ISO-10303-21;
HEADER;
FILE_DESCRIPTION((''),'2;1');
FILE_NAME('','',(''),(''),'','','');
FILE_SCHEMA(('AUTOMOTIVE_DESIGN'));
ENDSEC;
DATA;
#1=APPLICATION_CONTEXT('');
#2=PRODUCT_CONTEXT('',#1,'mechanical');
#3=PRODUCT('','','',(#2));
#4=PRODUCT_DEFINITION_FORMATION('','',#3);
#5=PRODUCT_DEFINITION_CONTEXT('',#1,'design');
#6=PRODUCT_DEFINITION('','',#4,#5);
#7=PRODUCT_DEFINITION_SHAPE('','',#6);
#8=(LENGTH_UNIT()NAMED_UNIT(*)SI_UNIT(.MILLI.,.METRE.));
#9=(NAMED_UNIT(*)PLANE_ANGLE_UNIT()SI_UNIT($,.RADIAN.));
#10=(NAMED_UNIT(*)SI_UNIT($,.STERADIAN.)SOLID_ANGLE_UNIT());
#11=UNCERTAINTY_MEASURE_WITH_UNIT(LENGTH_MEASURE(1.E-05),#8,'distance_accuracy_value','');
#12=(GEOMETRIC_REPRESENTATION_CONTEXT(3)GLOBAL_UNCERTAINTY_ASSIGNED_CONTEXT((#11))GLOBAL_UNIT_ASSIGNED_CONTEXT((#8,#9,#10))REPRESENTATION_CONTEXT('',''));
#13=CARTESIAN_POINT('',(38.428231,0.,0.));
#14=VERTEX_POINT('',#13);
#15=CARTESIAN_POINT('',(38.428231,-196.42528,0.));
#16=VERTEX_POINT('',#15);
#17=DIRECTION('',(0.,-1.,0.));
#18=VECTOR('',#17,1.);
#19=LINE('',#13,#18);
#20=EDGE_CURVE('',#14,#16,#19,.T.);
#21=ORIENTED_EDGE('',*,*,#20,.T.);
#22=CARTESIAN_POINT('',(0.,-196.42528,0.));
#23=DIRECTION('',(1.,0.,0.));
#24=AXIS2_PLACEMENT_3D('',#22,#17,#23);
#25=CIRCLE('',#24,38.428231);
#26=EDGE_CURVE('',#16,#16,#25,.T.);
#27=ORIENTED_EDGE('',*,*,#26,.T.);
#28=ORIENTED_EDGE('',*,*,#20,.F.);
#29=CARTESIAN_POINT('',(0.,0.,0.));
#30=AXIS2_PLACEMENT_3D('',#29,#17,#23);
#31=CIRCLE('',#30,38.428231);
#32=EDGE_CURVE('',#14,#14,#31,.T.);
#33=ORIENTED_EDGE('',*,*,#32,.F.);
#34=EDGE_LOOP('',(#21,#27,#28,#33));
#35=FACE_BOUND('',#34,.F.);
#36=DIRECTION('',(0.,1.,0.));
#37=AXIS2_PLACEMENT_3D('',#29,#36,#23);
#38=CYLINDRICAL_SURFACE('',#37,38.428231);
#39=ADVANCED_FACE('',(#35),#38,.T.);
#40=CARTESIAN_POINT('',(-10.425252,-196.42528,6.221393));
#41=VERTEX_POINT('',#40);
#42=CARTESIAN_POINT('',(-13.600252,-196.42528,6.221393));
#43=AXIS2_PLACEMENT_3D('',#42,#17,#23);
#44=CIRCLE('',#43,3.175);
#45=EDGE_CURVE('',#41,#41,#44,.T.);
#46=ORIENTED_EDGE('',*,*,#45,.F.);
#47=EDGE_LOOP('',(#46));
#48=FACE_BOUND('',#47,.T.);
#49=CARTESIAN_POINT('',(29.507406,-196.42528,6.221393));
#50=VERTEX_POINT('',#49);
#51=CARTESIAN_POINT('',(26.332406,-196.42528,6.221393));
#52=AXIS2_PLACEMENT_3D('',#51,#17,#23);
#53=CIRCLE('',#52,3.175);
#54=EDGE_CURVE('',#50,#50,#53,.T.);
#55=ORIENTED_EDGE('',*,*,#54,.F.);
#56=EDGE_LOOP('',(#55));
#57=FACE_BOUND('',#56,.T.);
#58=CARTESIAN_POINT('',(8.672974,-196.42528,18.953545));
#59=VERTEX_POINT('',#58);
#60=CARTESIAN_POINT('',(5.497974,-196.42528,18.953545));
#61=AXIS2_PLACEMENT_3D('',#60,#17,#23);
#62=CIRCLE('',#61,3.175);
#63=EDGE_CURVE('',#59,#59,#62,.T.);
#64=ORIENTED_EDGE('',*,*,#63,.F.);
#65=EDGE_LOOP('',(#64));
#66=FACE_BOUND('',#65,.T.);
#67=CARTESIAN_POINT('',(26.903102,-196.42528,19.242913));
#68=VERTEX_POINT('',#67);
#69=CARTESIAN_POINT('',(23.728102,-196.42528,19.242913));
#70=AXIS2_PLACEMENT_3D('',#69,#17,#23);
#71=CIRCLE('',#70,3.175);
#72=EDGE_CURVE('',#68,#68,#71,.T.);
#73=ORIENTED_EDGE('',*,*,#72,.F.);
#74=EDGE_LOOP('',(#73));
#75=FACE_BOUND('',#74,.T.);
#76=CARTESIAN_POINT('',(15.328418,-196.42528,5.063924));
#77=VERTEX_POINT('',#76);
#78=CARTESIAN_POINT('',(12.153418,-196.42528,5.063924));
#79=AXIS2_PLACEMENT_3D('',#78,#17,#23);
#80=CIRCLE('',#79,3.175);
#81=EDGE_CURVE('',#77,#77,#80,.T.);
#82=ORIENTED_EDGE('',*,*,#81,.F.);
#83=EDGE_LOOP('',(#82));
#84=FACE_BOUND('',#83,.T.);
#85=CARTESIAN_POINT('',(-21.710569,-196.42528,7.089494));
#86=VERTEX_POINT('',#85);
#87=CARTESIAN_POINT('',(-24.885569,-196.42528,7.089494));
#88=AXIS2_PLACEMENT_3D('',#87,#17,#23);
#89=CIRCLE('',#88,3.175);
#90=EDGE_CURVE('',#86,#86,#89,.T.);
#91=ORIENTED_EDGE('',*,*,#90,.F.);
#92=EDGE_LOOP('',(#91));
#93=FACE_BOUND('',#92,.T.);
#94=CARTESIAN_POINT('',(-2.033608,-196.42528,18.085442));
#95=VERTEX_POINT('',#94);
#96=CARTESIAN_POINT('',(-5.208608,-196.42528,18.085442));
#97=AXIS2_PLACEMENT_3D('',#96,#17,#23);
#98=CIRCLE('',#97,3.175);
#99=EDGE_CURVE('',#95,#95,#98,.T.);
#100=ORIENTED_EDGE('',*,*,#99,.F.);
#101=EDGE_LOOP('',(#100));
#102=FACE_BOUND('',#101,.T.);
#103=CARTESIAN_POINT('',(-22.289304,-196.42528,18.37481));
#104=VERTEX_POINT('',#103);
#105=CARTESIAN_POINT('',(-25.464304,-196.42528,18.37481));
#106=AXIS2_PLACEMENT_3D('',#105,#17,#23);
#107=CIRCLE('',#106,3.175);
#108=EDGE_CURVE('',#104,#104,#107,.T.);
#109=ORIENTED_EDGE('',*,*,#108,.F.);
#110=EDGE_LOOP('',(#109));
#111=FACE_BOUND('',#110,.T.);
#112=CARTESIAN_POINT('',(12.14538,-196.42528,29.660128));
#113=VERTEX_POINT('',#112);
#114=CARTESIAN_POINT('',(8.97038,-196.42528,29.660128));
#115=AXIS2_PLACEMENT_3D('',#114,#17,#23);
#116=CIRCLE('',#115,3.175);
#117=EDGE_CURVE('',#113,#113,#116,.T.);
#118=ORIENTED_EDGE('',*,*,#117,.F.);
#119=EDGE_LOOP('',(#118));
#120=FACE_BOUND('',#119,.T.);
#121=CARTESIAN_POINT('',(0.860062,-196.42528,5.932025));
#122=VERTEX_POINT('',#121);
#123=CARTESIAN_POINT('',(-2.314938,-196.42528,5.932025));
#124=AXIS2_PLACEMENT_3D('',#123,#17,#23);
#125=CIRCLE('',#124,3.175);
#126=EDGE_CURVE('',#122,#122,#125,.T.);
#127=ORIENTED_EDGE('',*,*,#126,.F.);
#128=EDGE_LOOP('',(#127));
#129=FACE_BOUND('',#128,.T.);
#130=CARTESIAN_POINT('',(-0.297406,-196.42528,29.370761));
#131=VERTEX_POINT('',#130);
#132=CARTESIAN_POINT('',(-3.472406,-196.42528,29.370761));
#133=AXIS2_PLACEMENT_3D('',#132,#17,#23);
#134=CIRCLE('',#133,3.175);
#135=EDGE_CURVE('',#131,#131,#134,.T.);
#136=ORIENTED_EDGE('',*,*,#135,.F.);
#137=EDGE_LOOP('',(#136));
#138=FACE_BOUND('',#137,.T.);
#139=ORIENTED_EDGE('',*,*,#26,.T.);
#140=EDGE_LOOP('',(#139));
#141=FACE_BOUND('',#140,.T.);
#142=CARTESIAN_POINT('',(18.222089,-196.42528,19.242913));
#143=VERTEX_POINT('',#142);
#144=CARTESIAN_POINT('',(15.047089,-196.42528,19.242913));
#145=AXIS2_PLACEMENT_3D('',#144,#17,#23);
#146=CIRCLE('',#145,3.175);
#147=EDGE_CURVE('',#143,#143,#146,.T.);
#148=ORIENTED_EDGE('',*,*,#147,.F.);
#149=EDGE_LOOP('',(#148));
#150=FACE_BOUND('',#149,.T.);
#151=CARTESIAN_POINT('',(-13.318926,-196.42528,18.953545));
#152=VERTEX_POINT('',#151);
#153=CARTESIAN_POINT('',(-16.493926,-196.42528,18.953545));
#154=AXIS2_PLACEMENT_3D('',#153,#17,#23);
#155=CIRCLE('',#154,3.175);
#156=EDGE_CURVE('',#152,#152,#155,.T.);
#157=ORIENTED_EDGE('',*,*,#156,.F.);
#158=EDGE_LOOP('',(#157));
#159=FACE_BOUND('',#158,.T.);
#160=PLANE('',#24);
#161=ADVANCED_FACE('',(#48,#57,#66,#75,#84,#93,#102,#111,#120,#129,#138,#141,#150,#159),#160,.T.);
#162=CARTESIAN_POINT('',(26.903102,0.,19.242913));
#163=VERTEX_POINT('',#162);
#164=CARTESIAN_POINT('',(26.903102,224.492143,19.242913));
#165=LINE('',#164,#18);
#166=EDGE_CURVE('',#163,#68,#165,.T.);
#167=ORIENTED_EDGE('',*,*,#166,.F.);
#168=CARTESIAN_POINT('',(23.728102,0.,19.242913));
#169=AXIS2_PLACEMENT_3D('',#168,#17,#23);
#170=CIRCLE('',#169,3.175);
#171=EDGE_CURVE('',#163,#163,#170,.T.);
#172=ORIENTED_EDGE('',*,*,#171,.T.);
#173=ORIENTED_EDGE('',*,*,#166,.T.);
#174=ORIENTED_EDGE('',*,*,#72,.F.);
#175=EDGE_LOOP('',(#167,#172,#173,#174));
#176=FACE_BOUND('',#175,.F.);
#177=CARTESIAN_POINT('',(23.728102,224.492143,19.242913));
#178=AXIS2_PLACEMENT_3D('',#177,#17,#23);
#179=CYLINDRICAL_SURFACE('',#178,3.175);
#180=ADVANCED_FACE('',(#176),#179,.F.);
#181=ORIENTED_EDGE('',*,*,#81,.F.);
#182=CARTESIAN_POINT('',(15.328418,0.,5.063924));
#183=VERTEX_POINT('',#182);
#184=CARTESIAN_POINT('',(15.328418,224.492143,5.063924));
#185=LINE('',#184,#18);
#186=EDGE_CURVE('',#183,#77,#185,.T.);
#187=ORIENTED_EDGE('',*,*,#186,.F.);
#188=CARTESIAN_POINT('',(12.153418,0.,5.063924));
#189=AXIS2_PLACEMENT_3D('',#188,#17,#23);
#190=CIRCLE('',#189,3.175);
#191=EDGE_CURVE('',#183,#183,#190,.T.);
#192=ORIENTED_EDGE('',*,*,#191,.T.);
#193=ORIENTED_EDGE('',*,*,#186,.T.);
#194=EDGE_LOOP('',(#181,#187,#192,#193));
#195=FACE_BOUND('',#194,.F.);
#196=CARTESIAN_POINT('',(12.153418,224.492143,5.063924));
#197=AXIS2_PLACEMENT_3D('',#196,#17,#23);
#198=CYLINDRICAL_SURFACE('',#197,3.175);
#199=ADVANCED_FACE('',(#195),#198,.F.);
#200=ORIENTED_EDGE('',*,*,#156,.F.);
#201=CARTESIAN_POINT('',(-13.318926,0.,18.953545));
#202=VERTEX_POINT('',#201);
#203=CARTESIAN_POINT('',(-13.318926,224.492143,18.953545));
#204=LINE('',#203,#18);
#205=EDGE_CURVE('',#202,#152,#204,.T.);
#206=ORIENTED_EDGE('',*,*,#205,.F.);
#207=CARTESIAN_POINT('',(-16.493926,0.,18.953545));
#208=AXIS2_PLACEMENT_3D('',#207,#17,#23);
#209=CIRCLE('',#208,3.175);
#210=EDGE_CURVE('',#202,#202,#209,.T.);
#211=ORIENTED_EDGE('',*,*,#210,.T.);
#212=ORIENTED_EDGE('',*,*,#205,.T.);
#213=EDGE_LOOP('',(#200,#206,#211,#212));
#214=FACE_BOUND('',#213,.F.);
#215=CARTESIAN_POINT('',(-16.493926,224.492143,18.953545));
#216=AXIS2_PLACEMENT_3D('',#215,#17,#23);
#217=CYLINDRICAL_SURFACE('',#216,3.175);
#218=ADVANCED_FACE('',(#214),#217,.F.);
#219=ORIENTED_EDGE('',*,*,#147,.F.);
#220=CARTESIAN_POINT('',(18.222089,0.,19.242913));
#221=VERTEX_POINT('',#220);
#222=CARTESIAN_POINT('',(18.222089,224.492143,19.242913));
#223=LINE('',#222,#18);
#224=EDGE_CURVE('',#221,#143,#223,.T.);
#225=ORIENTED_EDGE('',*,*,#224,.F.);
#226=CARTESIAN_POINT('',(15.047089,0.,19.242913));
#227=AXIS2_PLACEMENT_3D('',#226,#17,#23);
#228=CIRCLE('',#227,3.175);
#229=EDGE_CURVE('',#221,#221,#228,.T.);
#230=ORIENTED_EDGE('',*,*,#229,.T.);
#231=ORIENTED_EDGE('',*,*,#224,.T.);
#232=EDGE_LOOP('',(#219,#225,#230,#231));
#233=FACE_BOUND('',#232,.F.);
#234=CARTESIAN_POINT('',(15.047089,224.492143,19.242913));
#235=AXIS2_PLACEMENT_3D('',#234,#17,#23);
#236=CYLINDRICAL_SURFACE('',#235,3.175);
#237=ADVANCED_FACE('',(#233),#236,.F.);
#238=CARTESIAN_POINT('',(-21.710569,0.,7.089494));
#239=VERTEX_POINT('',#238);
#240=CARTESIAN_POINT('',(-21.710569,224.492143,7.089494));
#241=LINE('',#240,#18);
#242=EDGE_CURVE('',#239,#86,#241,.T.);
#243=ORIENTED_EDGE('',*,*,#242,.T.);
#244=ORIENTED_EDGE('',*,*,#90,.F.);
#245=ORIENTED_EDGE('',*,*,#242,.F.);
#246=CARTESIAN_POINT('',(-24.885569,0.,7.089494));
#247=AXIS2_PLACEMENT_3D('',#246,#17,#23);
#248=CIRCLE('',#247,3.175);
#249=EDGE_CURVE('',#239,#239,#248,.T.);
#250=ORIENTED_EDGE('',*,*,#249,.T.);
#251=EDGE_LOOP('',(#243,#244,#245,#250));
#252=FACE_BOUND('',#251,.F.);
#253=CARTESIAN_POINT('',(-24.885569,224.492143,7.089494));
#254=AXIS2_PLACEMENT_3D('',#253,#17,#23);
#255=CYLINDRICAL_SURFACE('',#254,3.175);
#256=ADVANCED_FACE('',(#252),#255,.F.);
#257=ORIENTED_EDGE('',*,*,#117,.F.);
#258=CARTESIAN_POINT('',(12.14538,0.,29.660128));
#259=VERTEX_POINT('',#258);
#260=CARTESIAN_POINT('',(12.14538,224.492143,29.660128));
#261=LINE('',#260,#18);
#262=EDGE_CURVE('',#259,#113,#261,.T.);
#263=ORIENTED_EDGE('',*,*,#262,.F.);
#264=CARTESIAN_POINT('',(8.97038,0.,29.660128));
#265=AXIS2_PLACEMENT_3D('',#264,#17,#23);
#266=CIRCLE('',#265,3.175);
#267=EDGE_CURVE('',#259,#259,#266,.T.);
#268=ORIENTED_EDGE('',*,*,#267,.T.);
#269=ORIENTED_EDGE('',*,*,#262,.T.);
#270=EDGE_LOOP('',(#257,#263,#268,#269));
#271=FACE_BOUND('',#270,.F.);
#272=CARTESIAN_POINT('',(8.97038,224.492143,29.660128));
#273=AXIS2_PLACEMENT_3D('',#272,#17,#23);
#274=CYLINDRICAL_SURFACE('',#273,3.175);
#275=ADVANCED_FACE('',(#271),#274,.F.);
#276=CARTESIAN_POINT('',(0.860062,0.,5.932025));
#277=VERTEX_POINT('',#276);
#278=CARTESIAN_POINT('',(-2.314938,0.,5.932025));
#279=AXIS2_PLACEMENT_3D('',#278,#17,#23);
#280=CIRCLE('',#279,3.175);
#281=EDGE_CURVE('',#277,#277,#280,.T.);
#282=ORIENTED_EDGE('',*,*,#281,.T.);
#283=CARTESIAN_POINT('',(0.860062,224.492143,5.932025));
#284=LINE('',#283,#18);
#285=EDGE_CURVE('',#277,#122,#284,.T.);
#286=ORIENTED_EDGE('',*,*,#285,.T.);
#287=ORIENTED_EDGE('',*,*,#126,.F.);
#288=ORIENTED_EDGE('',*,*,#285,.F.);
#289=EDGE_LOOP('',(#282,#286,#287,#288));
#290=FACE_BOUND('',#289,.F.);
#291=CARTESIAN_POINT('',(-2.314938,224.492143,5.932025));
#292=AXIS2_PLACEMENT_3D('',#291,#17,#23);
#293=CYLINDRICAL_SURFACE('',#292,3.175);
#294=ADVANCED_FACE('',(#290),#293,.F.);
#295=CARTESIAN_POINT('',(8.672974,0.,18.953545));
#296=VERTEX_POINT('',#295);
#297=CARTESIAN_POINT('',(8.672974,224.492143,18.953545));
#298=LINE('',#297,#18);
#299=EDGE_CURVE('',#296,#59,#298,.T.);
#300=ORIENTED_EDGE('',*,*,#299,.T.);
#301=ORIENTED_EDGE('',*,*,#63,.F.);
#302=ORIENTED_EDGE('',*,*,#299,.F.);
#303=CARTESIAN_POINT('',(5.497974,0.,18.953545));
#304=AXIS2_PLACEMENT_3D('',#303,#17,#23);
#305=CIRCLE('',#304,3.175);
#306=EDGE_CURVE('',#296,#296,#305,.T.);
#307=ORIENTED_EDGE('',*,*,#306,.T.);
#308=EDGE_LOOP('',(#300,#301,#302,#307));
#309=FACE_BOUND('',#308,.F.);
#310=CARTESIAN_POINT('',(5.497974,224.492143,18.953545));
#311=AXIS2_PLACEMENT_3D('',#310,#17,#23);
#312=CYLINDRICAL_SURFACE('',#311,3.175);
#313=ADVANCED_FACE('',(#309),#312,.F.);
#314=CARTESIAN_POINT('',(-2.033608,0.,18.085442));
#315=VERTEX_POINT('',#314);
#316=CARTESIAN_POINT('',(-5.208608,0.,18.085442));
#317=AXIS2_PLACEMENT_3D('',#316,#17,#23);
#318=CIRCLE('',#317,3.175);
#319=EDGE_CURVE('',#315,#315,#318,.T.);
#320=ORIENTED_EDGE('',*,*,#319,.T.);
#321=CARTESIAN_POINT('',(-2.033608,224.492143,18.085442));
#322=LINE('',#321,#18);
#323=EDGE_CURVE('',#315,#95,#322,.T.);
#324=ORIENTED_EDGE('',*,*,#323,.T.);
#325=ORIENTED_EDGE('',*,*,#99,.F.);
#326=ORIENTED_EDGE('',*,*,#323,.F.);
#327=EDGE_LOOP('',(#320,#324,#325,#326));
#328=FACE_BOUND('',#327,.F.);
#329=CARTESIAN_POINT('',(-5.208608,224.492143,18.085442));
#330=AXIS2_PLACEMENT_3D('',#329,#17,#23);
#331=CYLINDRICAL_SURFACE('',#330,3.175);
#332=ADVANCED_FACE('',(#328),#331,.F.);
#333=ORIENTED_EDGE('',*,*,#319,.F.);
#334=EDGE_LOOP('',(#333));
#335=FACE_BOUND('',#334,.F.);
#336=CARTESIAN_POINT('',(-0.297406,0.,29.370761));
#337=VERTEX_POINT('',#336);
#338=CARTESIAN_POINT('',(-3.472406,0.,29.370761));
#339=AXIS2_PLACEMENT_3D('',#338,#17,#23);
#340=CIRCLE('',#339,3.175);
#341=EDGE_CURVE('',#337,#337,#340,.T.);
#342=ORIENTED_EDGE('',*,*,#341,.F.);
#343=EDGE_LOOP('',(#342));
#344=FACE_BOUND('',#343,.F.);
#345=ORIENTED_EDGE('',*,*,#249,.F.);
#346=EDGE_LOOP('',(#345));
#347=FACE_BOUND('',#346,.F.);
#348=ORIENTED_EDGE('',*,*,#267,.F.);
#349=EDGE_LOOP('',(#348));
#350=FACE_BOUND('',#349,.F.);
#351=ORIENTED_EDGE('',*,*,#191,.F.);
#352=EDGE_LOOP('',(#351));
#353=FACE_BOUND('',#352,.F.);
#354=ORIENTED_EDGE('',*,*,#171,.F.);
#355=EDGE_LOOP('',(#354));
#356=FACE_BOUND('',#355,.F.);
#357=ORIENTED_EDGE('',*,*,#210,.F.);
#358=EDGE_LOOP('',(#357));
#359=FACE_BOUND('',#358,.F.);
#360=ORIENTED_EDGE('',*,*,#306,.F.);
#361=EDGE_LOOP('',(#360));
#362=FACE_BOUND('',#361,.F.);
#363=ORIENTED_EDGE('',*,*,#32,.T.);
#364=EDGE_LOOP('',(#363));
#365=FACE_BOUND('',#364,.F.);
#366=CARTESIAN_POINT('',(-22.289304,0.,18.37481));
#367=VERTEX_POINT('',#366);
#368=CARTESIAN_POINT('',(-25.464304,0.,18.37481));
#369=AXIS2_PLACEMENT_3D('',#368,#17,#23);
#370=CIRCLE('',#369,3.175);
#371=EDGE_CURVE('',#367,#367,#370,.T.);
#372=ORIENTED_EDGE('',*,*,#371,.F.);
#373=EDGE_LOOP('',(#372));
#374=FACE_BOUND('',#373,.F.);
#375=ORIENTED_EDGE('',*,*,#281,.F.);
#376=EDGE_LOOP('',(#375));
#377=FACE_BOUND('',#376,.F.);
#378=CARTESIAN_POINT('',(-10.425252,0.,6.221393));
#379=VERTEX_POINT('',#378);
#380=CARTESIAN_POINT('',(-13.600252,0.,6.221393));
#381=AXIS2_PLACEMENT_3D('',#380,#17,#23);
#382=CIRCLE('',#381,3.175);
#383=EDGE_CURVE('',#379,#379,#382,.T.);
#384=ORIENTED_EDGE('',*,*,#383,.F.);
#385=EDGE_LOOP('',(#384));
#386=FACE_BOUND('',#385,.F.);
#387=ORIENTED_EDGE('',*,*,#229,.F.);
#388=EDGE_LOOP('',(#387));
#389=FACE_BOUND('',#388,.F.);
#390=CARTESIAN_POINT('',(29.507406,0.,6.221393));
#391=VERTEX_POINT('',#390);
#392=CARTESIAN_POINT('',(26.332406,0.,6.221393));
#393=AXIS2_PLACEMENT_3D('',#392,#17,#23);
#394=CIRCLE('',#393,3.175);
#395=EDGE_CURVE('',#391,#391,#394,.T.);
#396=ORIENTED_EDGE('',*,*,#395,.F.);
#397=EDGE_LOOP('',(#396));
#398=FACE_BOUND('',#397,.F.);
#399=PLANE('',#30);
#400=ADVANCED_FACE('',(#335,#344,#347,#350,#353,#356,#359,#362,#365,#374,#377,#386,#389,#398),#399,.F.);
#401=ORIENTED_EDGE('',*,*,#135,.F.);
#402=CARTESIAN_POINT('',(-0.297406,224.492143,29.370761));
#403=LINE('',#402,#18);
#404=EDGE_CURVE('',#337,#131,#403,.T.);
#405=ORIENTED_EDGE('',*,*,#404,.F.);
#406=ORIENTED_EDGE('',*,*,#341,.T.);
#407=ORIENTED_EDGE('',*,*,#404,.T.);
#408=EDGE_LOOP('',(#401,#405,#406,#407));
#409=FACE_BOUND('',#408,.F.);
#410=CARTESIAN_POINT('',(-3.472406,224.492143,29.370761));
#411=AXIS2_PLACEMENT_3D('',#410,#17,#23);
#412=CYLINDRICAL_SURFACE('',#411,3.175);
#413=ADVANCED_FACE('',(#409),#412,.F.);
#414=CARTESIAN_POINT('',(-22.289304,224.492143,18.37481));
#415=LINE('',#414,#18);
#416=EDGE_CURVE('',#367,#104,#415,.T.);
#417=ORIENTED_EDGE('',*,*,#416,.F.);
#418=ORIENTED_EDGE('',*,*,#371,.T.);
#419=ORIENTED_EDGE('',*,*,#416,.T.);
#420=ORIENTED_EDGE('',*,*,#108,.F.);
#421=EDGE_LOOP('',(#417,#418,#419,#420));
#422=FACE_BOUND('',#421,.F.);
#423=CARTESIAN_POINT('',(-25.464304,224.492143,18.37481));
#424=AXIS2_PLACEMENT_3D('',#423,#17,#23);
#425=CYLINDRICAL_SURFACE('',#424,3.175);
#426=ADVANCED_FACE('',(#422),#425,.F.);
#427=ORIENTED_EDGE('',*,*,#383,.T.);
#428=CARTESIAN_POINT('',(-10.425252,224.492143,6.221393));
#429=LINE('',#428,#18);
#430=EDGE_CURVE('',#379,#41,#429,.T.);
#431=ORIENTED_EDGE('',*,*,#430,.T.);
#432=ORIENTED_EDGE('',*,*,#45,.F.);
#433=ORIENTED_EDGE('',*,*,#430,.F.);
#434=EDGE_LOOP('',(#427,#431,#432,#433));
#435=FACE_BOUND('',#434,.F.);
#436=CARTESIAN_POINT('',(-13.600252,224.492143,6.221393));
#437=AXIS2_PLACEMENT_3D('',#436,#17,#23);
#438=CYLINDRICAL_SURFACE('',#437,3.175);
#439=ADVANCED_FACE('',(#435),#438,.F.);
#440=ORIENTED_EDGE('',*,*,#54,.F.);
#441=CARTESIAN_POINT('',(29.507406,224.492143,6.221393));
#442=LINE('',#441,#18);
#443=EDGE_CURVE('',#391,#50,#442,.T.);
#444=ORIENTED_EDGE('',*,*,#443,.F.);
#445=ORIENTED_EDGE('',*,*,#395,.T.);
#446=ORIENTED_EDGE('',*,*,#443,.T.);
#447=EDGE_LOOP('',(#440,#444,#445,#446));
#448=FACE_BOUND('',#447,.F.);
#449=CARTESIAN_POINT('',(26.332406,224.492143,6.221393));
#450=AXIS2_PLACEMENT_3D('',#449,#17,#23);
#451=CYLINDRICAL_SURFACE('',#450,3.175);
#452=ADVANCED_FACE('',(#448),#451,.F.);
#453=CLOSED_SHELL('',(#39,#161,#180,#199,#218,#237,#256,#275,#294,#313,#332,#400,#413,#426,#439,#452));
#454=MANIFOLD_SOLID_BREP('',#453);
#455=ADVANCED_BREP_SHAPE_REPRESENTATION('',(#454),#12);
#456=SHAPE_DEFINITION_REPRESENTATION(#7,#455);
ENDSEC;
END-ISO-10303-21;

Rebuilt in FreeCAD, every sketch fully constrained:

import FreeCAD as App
import Part
import Sketcher
from FreeCAD import Vector
Q = App.Units.Quantity

doc = App.newDocument("Part")
body = doc.addObject("PartDesign::Body", "Body")

# Sketch on XZ plane
sketch1 = doc.addObject("Sketcher::SketchObject", "Sketch")
body.addObject(sketch1)
sketch1.AttachmentSupport = (doc.XZ_Plane, [""])
sketch1.MapMode = "FlatFace"
sketch1.addGeometry(Part.Circle(Vector(0, 0, 0), Vector(0, 0, 1), 38), False)
sketch1.addConstraint([
    Sketcher.Constraint("Coincident", 0, 3, -1, 1),
    Sketcher.Constraint("Diameter", 0, 76.856462),
])
pad1 = doc.addObject("PartDesign::Pad", "Pad")
body.addObject(pad1)
pad1.Profile = sketch1
pad1.Length = 196.42528

# Sketch on XZ plane
sketch2 = doc.addObject("Sketcher::SketchObject", "Sketch001")
body.addObject(sketch2)
sketch2.AttachmentSupport = (doc.XZ_Plane, [""])
sketch2.MapMode = "FlatFace"
sketch2.addGeometry([
    Part.Circle(Vector(-2.3, 5.9, 0), Vector(0, 0, 1), 3.2),  # 0
    Part.Circle(Vector(12.2, 5.1, 0), Vector(0, 0, 1), 3.2),  # 1
    Part.Circle(Vector(26.3, 6.2, 0), Vector(0, 0, 1), 3.2),  # 2
    Part.Circle(Vector(-13.6, 6.2, 0), Vector(0, 0, 1), 3.2),  # 3
    Part.Circle(Vector(-24.9, 7.1, 0), Vector(0, 0, 1), 3.2),  # 4
    Part.Circle(Vector(-25.5, 18.4, 0), Vector(0, 0, 1), 3.2),  # 5
    Part.Circle(Vector(-16.5, 19, 0), Vector(0, 0, 1), 3.2),  # 6
    Part.Circle(Vector(-5.2, 18.1, 0), Vector(0, 0, 1), 3.2),  # 7
    Part.Circle(Vector(5.5, 19, 0), Vector(0, 0, 1), 3.2),  # 8
    Part.Circle(Vector(15, 19.2, 0), Vector(0, 0, 1), 3.2),  # 9
    Part.Circle(Vector(23.7, 19.2, 0), Vector(0, 0, 1), 3.2),  # 10
    Part.Circle(Vector(9, 29.7, 0), Vector(0, 0, 1), 3.2),  # 11
    Part.Circle(Vector(-3.5, 29.4, 0), Vector(0, 0, 1), 3.2),  # 12
], False)
sketch2.addConstraint([
    Sketcher.Constraint("Equal", 0, 1),
    Sketcher.Constraint("Equal", 1, 2),
    Sketcher.Constraint("Equal", 2, 3),
    Sketcher.Constraint("Equal", 3, 4),
    Sketcher.Constraint("Equal", 4, 5),
    Sketcher.Constraint("Equal", 5, 6),
    Sketcher.Constraint("Equal", 6, 7),
    Sketcher.Constraint("Equal", 7, 8),
    Sketcher.Constraint("Equal", 8, 9),
    Sketcher.Constraint("Equal", 9, 10),
    Sketcher.Constraint("Equal", 10, 11),
    Sketcher.Constraint("Equal", 11, 12),
    Sketcher.Constraint("Horizontal", 2, 3, 3, 3),
    Sketcher.Constraint("Horizontal", 6, 3, 8, 3),
    Sketcher.Constraint("Horizontal", 9, 3, 10, 3),
    Sketcher.Constraint("Diameter", 0, Q("0.25 in")),
    Sketcher.Constraint("DistanceX", -1, 1, 10, 3, 23.728102),
    Sketcher.Constraint("DistanceY", 1, 3, 0, 3, 0.868101),
    Sketcher.Constraint("DistanceY", 3, 3, 4, 3, 0.868101),
    Sketcher.Constraint("DistanceX", 6, 3, 8, 3, 21.9919),
    Sketcher.Constraint("DistanceX", 0, 3, -1, 1, 2.314938),
    Sketcher.Constraint("DistanceX", 3, 3, -1, 1, 13.600252),
    Sketcher.Constraint("DistanceX", 4, 3, -1, 1, 24.885569),
    Sketcher.Constraint("DistanceY", -1, 1, 5, 3, 18.37481),
    Sketcher.Constraint("DistanceX", -1, 1, 9, 3, 15.047089),
    Sketcher.Constraint("DistanceX", -1, 1, 11, 3, 8.97038),
    Sketcher.Constraint("DistanceY", -1, 1, 11, 3, 29.660128),
    Sketcher.Constraint("DistanceY", -1, 1, 12, 3, 29.370761),
    Sketcher.Constraint("DistanceY", 1, 3, 2, 3, 1.157469),
    Sketcher.Constraint("DistanceX", 3, 3, 1, 3, 25.75367),
    Sketcher.Constraint("DistanceX", 5, 3, 3, 3, 11.864052),
    Sketcher.Constraint("DistanceX", 5, 3, 2, 3, 51.79671),
    Sketcher.Constraint("DistanceY", 3, 3, 6, 3, 12.732152),
    Sketcher.Constraint("DistanceX", 7, 3, 0, 3, 2.89367),
    Sketcher.Constraint("DistanceY", 3, 3, 7, 3, 11.864049),
    Sketcher.Constraint("DistanceY", 8, 3, 9, 3, 0.289368),
    Sketcher.Constraint("DistanceX", 8, 3, 10, 3, 18.230128),
    Sketcher.Constraint("DistanceY", 7, 3, 12, 3, 11.285319),
    Sketcher.Constraint("DistanceX", 12, 3, 8, 3, 8.97038),
])
doc.recompute()
hole = doc.addObject("PartDesign::Hole", "Hole")
body.addObject(hole)
hole.Profile = sketch2
hole.ThreadType = "None"
hole.Diameter = Q("0.25 in")
hole.DepthType = "ThroughAll"
hole.Reversed = True

doc.recompute()
